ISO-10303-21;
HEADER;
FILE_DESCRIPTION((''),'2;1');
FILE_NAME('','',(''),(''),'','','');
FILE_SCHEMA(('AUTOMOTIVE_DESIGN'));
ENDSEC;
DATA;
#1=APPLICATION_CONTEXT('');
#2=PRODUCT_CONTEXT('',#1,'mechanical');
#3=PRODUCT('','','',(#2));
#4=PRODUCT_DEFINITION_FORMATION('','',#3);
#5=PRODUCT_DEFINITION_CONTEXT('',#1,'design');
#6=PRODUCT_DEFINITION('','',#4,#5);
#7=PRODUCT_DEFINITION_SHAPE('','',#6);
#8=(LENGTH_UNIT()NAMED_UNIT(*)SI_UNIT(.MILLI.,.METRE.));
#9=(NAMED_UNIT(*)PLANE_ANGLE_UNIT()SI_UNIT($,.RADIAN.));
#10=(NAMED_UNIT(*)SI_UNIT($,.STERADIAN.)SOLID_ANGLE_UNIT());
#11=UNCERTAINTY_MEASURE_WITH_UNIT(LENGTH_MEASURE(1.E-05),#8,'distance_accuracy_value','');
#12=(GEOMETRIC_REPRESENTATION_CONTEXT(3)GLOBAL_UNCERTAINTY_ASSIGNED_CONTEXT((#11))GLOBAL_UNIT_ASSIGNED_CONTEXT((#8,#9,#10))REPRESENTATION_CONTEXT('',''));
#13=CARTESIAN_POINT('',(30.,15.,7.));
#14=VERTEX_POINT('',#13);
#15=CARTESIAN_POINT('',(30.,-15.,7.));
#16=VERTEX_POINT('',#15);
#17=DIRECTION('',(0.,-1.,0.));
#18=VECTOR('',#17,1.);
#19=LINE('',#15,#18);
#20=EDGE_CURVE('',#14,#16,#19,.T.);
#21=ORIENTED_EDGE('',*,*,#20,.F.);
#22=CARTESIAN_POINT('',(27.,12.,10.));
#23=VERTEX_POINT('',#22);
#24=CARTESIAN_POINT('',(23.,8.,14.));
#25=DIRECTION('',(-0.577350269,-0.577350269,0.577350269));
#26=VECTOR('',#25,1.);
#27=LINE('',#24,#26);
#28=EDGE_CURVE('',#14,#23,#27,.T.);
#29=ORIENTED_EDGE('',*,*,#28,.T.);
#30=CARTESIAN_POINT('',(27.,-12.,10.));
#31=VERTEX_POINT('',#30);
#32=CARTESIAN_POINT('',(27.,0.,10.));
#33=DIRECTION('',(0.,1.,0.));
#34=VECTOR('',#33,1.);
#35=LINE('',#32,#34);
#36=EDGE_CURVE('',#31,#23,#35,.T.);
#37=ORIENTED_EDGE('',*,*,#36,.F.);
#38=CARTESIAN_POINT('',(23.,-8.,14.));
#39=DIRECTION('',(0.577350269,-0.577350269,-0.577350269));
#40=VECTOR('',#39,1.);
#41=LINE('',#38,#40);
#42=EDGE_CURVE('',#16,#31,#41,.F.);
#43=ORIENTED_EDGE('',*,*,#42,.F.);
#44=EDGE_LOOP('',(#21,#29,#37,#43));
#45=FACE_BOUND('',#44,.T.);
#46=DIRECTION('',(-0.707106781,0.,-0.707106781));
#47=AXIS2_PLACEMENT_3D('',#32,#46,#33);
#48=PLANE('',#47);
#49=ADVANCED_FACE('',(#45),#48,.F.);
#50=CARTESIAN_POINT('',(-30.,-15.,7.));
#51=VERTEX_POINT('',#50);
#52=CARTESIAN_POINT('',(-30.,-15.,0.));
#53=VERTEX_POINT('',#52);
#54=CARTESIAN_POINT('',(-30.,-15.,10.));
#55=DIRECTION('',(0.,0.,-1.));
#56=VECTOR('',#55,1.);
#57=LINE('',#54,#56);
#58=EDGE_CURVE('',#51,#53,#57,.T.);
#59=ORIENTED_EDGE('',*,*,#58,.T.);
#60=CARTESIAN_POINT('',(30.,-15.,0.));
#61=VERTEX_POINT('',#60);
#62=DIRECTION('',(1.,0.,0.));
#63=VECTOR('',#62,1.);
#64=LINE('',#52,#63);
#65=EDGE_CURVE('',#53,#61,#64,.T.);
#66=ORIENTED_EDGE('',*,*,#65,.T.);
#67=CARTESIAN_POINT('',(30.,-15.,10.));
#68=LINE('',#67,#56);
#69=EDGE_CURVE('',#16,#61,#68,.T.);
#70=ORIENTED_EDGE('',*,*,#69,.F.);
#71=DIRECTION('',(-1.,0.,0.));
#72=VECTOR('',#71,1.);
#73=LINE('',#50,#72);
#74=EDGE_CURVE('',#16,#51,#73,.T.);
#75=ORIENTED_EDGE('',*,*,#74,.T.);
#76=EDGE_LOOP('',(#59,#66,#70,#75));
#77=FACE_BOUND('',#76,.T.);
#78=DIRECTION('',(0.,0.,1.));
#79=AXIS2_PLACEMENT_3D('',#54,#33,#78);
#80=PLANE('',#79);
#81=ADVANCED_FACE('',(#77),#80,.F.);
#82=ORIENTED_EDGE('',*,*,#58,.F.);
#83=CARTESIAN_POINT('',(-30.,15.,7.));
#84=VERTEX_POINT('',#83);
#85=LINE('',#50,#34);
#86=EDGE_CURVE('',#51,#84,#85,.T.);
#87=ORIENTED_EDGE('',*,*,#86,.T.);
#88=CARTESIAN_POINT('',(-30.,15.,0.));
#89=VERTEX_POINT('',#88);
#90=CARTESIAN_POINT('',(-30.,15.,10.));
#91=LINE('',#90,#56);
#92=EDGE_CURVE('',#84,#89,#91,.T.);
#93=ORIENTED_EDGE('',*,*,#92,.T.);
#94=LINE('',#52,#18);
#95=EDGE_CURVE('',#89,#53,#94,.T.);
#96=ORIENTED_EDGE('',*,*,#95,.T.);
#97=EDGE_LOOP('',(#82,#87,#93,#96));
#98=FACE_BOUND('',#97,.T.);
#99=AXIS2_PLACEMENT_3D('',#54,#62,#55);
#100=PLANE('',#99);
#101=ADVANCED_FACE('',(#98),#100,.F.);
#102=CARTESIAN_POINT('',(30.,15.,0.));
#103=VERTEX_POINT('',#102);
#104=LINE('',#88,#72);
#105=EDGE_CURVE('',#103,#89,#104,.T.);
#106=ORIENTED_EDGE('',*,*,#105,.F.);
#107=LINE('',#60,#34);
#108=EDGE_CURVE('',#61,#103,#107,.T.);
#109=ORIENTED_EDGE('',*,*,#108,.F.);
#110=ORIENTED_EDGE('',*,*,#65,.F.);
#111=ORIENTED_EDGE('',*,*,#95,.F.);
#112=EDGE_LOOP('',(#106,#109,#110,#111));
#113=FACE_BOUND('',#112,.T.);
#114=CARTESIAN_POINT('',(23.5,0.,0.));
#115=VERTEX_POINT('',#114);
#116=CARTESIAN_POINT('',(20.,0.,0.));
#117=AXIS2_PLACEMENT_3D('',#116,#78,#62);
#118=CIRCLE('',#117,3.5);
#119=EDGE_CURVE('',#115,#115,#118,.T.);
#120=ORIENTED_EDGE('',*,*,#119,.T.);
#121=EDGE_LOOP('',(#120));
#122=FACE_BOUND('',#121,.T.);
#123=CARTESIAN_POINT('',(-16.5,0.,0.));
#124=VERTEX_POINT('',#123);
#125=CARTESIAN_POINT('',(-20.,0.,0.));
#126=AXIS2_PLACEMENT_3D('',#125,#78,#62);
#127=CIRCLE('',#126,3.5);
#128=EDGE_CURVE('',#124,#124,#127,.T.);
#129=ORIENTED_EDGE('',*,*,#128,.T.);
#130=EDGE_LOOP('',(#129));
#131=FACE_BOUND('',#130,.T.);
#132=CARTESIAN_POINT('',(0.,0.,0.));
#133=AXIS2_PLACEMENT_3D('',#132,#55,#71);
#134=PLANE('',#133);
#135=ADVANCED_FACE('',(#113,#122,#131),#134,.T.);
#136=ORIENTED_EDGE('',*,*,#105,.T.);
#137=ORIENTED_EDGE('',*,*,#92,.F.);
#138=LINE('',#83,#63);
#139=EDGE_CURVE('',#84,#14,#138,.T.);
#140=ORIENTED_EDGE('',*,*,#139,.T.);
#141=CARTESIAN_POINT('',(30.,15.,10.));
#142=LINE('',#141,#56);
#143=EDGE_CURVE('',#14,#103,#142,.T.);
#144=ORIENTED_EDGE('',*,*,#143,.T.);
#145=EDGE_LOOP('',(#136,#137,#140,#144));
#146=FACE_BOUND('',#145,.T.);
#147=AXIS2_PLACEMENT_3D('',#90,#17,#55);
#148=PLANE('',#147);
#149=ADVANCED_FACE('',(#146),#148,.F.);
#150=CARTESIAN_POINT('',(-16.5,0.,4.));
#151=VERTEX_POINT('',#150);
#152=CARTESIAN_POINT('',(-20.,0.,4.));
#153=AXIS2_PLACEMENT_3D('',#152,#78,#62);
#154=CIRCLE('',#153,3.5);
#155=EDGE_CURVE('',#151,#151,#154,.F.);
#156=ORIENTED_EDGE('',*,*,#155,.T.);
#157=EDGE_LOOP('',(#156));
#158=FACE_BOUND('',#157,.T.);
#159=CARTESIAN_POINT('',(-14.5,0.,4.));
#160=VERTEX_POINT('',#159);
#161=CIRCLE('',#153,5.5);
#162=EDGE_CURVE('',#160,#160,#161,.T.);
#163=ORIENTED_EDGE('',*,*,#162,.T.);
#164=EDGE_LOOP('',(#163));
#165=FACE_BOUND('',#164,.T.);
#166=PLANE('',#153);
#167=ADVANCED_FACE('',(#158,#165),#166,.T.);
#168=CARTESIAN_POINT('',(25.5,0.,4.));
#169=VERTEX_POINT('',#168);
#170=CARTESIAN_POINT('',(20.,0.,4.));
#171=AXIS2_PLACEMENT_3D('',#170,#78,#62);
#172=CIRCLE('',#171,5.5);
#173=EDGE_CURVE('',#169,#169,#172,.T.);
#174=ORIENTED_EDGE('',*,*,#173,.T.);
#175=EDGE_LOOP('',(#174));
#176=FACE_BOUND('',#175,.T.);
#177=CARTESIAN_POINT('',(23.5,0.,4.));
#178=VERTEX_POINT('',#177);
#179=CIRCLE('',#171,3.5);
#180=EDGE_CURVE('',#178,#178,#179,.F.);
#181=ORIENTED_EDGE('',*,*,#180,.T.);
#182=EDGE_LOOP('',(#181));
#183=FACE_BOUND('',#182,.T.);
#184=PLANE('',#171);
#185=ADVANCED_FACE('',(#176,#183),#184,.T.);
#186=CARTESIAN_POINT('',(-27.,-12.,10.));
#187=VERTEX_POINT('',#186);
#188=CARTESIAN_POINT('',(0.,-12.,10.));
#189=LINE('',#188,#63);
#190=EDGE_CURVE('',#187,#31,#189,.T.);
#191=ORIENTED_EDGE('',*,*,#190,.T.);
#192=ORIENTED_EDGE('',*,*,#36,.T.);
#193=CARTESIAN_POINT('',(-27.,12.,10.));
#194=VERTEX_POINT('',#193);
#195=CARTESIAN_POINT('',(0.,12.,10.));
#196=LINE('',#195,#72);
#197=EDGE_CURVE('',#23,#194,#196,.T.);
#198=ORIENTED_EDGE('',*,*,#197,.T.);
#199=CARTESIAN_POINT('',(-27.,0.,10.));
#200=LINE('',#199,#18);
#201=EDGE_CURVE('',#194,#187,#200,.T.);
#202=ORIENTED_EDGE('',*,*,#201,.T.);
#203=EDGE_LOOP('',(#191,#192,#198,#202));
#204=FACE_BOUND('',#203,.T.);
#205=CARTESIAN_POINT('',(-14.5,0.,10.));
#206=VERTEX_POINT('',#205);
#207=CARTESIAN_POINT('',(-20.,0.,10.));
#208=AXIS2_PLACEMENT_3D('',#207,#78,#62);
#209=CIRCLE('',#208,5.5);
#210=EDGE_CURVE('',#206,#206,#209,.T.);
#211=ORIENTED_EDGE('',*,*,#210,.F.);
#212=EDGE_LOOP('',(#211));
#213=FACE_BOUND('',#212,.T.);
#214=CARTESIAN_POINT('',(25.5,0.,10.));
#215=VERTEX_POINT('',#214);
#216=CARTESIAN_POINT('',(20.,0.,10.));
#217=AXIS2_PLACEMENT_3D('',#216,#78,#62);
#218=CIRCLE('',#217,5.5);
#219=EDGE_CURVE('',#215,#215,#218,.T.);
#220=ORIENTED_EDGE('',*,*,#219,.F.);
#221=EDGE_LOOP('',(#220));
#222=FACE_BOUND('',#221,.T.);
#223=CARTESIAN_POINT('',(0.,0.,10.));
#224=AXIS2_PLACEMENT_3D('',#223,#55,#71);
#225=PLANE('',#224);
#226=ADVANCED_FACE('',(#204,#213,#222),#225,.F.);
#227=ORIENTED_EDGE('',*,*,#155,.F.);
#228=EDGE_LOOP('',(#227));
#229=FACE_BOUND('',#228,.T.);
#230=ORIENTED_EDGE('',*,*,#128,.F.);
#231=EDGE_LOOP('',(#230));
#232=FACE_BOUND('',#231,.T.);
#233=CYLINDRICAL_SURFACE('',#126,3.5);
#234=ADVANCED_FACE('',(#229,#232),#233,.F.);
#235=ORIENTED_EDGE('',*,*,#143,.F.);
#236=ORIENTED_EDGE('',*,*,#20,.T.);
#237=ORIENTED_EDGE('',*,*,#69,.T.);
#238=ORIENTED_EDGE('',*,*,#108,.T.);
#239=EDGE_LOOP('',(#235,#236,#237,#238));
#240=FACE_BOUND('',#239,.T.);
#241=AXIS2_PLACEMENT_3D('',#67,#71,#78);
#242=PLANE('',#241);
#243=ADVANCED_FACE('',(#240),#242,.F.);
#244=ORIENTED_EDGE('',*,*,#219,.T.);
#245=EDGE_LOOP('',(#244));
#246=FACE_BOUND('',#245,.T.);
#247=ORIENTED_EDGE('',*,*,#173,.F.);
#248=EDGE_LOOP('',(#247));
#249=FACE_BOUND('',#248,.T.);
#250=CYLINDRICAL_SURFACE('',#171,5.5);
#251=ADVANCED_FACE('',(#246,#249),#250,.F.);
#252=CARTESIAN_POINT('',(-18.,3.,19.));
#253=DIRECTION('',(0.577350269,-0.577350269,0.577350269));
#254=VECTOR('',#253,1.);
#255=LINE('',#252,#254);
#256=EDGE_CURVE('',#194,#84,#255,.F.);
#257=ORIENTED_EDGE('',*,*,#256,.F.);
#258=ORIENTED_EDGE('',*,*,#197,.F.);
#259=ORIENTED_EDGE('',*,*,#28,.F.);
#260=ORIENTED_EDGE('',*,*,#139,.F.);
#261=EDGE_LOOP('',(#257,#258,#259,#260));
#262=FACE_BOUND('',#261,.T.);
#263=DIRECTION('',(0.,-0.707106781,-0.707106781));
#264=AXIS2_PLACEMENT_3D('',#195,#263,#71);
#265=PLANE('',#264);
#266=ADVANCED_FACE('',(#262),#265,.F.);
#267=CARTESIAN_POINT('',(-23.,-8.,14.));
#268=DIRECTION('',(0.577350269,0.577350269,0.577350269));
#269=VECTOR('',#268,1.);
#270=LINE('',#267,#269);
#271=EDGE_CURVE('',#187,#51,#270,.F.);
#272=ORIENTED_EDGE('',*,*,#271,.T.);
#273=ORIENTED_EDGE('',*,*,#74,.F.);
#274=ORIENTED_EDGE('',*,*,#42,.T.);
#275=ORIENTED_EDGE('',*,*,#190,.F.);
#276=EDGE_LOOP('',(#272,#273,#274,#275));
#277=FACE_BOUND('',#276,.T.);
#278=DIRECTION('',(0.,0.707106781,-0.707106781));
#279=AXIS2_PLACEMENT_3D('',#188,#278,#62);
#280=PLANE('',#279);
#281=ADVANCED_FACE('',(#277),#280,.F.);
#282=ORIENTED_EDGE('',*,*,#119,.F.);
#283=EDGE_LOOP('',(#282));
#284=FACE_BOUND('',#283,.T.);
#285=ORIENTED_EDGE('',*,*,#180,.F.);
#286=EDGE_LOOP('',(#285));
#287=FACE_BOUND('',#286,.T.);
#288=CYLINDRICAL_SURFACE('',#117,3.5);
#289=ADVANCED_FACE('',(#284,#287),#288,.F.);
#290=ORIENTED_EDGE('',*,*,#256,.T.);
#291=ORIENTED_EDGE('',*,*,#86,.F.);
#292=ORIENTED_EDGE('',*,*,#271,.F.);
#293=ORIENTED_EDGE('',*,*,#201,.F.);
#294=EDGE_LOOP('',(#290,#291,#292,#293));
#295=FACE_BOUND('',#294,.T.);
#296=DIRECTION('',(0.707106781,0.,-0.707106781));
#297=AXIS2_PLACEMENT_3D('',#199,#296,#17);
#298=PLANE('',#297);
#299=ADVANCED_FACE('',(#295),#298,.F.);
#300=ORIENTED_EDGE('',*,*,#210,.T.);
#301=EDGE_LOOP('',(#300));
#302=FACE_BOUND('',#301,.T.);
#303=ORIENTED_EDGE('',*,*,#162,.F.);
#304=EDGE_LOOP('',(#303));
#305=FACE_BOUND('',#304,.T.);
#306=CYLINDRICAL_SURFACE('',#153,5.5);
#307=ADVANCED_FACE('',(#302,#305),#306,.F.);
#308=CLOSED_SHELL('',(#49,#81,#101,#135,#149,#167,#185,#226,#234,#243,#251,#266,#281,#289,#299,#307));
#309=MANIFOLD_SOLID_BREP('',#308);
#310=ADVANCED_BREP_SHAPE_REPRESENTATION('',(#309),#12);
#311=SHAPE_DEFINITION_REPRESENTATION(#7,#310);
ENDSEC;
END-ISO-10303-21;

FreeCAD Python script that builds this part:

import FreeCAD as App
import Part
import Sketcher
from FreeCAD import Vector
Q = App.Units.Quantity


def edges_at(feature, points):
    """Names of the edges that pass closest to the given points."""
    edges = feature.Shape.Edges
    near = lambda p: min(range(len(edges)), key=lambda i: edges[i].distToShape(Part.Vertex(*p))[0])
    return sorted({f"Edge{near(p) + 1}" for p in points})

doc = App.newDocument("Part")
params = doc.addObject("Spreadsheet::Sheet", "Params")
for row, (alias, value) in enumerate([
    ("sketch1_width", "60 mm"),
    ("sketch1_height", "30 mm"),
    ("pad1_length", "10 mm"),
    ("chamfer_size", "3 mm"),
    ("sketch2_diameter", "7 mm"),
    ("sketch3_diameter", "11 mm"),
    ("pocket2_length", "6 mm"),
], start=1):
    params.set(f"A{row}", alias)
    params.set(f"B{row}", "=" + value)
    params.setAlias(f"B{row}", alias)

body = doc.addObject("PartDesign::Body", "Body")

# Sketch on XY plane
sketch1 = body.newObject("Sketcher::SketchObject", "Sketch")
sketch1.AttachmentSupport = (doc.getObject("XY_Plane"), [""])
sketch1.MapMode = "FlatFace"
sketch1.addGeometry(Part.LineSegment(Vector(-30, 15, 0), Vector(-30, -15, 0)), False)
sketch1.addGeometry(Part.LineSegment(Vector(-30, -15, 0), Vector(30, -15, 0)), False)
sketch1.addGeometry(Part.LineSegment(Vector(30, -15, 0), Vector(30, 15, 0)), False)
sketch1.addGeometry(Part.LineSegment(Vector(30, 15, 0), Vector(-30, 15, 0)), False)
sketch1.addConstraint(Sketcher.Constraint("Coincident", 0, 2, 1, 1))
sketch1.addConstraint(Sketcher.Constraint("Coincident", 1, 2, 2, 1))
sketch1.addConstraint(Sketcher.Constraint("Coincident", 2, 2, 3, 1))
sketch1.addConstraint(Sketcher.Constraint("Coincident", 3, 2, 0, 1))
sketch1.addConstraint(Sketcher.Constraint("Vertical", 0))
sketch1.addConstraint(Sketcher.Constraint("Horizontal", 1))
sketch1.addConstraint(Sketcher.Constraint("Vertical", 2))
sketch1.addConstraint(Sketcher.Constraint("Horizontal", 3))
sketch1.addConstraint(Sketcher.Constraint("Symmetric", 0, 2, 2, 2, -1, 1))
sketch1.addConstraint(Sketcher.Constraint("DistanceX", 1, 1, 1, 2, Q("60 mm")))
sketch1.addConstraint(Sketcher.Constraint("DistanceY", 0, 2, 0, 1, Q("30 mm")))
sketch1.setExpression("Constraints[9]", "Params.sketch1_width")
sketch1.setExpression("Constraints[10]", "Params.sketch1_height")
pad1 = body.newObject("PartDesign::Pad", "Pad")
pad1.Profile = sketch1
pad1.setExpression("Length", "Params.pad1_length")
doc.recompute()

chamfer = body.newObject("PartDesign::Chamfer", "Chamfer")
chamfer.Base = (pad1, edges_at(pad1, [
    (-30, 0, 10),
    (0, -15, 10),
    (30, 0, 10),
    (0, 15, 10),
]))
chamfer.setExpression("Size", "Params.chamfer_size")

# Sketch on XY plane
sketch2 = body.newObject("Sketcher::SketchObject", "Sketch001")
sketch2.AttachmentSupport = (doc.getObject("XY_Plane"), [""])
sketch2.MapMode = "FlatFace"
sketch2.AttachmentOffset = App.Placement(Vector(0, 0, 10), App.Rotation())
sketch2.addGeometry(Part.Circle(Vector(-20, 0, 0), Vector(0, 0, 1), 3.5), False)
sketch2.addGeometry(Part.Circle(Vector(20, 0, 0), Vector(0, 0, 1), 3.5), False)
sketch2.addConstraint(Sketcher.Constraint("Equal", 0, 1))
sketch2.addConstraint(Sketcher.Constraint("Symmetric", 0, 3, 1, 3, -1, 1))
sketch2.addConstraint(Sketcher.Constraint("PointOnObject", 0, 3, -1))
sketch2.addConstraint(Sketcher.Constraint("Diameter", 0, Q("7 mm")))
sketch2.addConstraint(Sketcher.Constraint("DistanceX", 0, 3, -1, 1, Q("20 mm")))
sketch2.setExpression("Constraints[3]", "Params.sketch2_diameter")
pocket1 = body.newObject("PartDesign::Pocket", "Pocket")
pocket1.Profile = sketch2
pocket1.Type = "ThroughAll"

# Sketch on XY plane
sketch3 = body.newObject("Sketcher::SketchObject", "Sketch002")
sketch3.AttachmentSupport = (doc.getObject("XY_Plane"), [""])
sketch3.MapMode = "FlatFace"
sketch3.AttachmentOffset = App.Placement(Vector(0, 0, 10), App.Rotation())
sketch3.addGeometry(Part.Circle(Vector(-20, 0, 0), Vector(0, 0, 1), 5.5), False)
sketch3.addGeometry(Part.Circle(Vector(20, 0, 0), Vector(0, 0, 1), 5.5), False)
sketch3.addConstraint(Sketcher.Constraint("Equal", 0, 1))
sketch3.addConstraint(Sketcher.Constraint("Symmetric", 0, 3, 1, 3, -1, 1))
sketch3.addConstraint(Sketcher.Constraint("PointOnObject", 0, 3, -1))
sketch3.addConstraint(Sketcher.Constraint("Diameter", 0, Q("11 mm")))
sketch3.addConstraint(Sketcher.Constraint("DistanceX", 0, 3, -1, 1, Q("20 mm")))
sketch3.setExpression("Constraints[3]", "Params.sketch3_diameter")
pocket2 = body.newObject("PartDesign::Pocket", "Pocket001")
pocket2.Profile = sketch3
pocket2.setExpression("Length", "Params.pocket2_length")

doc.recompute()
